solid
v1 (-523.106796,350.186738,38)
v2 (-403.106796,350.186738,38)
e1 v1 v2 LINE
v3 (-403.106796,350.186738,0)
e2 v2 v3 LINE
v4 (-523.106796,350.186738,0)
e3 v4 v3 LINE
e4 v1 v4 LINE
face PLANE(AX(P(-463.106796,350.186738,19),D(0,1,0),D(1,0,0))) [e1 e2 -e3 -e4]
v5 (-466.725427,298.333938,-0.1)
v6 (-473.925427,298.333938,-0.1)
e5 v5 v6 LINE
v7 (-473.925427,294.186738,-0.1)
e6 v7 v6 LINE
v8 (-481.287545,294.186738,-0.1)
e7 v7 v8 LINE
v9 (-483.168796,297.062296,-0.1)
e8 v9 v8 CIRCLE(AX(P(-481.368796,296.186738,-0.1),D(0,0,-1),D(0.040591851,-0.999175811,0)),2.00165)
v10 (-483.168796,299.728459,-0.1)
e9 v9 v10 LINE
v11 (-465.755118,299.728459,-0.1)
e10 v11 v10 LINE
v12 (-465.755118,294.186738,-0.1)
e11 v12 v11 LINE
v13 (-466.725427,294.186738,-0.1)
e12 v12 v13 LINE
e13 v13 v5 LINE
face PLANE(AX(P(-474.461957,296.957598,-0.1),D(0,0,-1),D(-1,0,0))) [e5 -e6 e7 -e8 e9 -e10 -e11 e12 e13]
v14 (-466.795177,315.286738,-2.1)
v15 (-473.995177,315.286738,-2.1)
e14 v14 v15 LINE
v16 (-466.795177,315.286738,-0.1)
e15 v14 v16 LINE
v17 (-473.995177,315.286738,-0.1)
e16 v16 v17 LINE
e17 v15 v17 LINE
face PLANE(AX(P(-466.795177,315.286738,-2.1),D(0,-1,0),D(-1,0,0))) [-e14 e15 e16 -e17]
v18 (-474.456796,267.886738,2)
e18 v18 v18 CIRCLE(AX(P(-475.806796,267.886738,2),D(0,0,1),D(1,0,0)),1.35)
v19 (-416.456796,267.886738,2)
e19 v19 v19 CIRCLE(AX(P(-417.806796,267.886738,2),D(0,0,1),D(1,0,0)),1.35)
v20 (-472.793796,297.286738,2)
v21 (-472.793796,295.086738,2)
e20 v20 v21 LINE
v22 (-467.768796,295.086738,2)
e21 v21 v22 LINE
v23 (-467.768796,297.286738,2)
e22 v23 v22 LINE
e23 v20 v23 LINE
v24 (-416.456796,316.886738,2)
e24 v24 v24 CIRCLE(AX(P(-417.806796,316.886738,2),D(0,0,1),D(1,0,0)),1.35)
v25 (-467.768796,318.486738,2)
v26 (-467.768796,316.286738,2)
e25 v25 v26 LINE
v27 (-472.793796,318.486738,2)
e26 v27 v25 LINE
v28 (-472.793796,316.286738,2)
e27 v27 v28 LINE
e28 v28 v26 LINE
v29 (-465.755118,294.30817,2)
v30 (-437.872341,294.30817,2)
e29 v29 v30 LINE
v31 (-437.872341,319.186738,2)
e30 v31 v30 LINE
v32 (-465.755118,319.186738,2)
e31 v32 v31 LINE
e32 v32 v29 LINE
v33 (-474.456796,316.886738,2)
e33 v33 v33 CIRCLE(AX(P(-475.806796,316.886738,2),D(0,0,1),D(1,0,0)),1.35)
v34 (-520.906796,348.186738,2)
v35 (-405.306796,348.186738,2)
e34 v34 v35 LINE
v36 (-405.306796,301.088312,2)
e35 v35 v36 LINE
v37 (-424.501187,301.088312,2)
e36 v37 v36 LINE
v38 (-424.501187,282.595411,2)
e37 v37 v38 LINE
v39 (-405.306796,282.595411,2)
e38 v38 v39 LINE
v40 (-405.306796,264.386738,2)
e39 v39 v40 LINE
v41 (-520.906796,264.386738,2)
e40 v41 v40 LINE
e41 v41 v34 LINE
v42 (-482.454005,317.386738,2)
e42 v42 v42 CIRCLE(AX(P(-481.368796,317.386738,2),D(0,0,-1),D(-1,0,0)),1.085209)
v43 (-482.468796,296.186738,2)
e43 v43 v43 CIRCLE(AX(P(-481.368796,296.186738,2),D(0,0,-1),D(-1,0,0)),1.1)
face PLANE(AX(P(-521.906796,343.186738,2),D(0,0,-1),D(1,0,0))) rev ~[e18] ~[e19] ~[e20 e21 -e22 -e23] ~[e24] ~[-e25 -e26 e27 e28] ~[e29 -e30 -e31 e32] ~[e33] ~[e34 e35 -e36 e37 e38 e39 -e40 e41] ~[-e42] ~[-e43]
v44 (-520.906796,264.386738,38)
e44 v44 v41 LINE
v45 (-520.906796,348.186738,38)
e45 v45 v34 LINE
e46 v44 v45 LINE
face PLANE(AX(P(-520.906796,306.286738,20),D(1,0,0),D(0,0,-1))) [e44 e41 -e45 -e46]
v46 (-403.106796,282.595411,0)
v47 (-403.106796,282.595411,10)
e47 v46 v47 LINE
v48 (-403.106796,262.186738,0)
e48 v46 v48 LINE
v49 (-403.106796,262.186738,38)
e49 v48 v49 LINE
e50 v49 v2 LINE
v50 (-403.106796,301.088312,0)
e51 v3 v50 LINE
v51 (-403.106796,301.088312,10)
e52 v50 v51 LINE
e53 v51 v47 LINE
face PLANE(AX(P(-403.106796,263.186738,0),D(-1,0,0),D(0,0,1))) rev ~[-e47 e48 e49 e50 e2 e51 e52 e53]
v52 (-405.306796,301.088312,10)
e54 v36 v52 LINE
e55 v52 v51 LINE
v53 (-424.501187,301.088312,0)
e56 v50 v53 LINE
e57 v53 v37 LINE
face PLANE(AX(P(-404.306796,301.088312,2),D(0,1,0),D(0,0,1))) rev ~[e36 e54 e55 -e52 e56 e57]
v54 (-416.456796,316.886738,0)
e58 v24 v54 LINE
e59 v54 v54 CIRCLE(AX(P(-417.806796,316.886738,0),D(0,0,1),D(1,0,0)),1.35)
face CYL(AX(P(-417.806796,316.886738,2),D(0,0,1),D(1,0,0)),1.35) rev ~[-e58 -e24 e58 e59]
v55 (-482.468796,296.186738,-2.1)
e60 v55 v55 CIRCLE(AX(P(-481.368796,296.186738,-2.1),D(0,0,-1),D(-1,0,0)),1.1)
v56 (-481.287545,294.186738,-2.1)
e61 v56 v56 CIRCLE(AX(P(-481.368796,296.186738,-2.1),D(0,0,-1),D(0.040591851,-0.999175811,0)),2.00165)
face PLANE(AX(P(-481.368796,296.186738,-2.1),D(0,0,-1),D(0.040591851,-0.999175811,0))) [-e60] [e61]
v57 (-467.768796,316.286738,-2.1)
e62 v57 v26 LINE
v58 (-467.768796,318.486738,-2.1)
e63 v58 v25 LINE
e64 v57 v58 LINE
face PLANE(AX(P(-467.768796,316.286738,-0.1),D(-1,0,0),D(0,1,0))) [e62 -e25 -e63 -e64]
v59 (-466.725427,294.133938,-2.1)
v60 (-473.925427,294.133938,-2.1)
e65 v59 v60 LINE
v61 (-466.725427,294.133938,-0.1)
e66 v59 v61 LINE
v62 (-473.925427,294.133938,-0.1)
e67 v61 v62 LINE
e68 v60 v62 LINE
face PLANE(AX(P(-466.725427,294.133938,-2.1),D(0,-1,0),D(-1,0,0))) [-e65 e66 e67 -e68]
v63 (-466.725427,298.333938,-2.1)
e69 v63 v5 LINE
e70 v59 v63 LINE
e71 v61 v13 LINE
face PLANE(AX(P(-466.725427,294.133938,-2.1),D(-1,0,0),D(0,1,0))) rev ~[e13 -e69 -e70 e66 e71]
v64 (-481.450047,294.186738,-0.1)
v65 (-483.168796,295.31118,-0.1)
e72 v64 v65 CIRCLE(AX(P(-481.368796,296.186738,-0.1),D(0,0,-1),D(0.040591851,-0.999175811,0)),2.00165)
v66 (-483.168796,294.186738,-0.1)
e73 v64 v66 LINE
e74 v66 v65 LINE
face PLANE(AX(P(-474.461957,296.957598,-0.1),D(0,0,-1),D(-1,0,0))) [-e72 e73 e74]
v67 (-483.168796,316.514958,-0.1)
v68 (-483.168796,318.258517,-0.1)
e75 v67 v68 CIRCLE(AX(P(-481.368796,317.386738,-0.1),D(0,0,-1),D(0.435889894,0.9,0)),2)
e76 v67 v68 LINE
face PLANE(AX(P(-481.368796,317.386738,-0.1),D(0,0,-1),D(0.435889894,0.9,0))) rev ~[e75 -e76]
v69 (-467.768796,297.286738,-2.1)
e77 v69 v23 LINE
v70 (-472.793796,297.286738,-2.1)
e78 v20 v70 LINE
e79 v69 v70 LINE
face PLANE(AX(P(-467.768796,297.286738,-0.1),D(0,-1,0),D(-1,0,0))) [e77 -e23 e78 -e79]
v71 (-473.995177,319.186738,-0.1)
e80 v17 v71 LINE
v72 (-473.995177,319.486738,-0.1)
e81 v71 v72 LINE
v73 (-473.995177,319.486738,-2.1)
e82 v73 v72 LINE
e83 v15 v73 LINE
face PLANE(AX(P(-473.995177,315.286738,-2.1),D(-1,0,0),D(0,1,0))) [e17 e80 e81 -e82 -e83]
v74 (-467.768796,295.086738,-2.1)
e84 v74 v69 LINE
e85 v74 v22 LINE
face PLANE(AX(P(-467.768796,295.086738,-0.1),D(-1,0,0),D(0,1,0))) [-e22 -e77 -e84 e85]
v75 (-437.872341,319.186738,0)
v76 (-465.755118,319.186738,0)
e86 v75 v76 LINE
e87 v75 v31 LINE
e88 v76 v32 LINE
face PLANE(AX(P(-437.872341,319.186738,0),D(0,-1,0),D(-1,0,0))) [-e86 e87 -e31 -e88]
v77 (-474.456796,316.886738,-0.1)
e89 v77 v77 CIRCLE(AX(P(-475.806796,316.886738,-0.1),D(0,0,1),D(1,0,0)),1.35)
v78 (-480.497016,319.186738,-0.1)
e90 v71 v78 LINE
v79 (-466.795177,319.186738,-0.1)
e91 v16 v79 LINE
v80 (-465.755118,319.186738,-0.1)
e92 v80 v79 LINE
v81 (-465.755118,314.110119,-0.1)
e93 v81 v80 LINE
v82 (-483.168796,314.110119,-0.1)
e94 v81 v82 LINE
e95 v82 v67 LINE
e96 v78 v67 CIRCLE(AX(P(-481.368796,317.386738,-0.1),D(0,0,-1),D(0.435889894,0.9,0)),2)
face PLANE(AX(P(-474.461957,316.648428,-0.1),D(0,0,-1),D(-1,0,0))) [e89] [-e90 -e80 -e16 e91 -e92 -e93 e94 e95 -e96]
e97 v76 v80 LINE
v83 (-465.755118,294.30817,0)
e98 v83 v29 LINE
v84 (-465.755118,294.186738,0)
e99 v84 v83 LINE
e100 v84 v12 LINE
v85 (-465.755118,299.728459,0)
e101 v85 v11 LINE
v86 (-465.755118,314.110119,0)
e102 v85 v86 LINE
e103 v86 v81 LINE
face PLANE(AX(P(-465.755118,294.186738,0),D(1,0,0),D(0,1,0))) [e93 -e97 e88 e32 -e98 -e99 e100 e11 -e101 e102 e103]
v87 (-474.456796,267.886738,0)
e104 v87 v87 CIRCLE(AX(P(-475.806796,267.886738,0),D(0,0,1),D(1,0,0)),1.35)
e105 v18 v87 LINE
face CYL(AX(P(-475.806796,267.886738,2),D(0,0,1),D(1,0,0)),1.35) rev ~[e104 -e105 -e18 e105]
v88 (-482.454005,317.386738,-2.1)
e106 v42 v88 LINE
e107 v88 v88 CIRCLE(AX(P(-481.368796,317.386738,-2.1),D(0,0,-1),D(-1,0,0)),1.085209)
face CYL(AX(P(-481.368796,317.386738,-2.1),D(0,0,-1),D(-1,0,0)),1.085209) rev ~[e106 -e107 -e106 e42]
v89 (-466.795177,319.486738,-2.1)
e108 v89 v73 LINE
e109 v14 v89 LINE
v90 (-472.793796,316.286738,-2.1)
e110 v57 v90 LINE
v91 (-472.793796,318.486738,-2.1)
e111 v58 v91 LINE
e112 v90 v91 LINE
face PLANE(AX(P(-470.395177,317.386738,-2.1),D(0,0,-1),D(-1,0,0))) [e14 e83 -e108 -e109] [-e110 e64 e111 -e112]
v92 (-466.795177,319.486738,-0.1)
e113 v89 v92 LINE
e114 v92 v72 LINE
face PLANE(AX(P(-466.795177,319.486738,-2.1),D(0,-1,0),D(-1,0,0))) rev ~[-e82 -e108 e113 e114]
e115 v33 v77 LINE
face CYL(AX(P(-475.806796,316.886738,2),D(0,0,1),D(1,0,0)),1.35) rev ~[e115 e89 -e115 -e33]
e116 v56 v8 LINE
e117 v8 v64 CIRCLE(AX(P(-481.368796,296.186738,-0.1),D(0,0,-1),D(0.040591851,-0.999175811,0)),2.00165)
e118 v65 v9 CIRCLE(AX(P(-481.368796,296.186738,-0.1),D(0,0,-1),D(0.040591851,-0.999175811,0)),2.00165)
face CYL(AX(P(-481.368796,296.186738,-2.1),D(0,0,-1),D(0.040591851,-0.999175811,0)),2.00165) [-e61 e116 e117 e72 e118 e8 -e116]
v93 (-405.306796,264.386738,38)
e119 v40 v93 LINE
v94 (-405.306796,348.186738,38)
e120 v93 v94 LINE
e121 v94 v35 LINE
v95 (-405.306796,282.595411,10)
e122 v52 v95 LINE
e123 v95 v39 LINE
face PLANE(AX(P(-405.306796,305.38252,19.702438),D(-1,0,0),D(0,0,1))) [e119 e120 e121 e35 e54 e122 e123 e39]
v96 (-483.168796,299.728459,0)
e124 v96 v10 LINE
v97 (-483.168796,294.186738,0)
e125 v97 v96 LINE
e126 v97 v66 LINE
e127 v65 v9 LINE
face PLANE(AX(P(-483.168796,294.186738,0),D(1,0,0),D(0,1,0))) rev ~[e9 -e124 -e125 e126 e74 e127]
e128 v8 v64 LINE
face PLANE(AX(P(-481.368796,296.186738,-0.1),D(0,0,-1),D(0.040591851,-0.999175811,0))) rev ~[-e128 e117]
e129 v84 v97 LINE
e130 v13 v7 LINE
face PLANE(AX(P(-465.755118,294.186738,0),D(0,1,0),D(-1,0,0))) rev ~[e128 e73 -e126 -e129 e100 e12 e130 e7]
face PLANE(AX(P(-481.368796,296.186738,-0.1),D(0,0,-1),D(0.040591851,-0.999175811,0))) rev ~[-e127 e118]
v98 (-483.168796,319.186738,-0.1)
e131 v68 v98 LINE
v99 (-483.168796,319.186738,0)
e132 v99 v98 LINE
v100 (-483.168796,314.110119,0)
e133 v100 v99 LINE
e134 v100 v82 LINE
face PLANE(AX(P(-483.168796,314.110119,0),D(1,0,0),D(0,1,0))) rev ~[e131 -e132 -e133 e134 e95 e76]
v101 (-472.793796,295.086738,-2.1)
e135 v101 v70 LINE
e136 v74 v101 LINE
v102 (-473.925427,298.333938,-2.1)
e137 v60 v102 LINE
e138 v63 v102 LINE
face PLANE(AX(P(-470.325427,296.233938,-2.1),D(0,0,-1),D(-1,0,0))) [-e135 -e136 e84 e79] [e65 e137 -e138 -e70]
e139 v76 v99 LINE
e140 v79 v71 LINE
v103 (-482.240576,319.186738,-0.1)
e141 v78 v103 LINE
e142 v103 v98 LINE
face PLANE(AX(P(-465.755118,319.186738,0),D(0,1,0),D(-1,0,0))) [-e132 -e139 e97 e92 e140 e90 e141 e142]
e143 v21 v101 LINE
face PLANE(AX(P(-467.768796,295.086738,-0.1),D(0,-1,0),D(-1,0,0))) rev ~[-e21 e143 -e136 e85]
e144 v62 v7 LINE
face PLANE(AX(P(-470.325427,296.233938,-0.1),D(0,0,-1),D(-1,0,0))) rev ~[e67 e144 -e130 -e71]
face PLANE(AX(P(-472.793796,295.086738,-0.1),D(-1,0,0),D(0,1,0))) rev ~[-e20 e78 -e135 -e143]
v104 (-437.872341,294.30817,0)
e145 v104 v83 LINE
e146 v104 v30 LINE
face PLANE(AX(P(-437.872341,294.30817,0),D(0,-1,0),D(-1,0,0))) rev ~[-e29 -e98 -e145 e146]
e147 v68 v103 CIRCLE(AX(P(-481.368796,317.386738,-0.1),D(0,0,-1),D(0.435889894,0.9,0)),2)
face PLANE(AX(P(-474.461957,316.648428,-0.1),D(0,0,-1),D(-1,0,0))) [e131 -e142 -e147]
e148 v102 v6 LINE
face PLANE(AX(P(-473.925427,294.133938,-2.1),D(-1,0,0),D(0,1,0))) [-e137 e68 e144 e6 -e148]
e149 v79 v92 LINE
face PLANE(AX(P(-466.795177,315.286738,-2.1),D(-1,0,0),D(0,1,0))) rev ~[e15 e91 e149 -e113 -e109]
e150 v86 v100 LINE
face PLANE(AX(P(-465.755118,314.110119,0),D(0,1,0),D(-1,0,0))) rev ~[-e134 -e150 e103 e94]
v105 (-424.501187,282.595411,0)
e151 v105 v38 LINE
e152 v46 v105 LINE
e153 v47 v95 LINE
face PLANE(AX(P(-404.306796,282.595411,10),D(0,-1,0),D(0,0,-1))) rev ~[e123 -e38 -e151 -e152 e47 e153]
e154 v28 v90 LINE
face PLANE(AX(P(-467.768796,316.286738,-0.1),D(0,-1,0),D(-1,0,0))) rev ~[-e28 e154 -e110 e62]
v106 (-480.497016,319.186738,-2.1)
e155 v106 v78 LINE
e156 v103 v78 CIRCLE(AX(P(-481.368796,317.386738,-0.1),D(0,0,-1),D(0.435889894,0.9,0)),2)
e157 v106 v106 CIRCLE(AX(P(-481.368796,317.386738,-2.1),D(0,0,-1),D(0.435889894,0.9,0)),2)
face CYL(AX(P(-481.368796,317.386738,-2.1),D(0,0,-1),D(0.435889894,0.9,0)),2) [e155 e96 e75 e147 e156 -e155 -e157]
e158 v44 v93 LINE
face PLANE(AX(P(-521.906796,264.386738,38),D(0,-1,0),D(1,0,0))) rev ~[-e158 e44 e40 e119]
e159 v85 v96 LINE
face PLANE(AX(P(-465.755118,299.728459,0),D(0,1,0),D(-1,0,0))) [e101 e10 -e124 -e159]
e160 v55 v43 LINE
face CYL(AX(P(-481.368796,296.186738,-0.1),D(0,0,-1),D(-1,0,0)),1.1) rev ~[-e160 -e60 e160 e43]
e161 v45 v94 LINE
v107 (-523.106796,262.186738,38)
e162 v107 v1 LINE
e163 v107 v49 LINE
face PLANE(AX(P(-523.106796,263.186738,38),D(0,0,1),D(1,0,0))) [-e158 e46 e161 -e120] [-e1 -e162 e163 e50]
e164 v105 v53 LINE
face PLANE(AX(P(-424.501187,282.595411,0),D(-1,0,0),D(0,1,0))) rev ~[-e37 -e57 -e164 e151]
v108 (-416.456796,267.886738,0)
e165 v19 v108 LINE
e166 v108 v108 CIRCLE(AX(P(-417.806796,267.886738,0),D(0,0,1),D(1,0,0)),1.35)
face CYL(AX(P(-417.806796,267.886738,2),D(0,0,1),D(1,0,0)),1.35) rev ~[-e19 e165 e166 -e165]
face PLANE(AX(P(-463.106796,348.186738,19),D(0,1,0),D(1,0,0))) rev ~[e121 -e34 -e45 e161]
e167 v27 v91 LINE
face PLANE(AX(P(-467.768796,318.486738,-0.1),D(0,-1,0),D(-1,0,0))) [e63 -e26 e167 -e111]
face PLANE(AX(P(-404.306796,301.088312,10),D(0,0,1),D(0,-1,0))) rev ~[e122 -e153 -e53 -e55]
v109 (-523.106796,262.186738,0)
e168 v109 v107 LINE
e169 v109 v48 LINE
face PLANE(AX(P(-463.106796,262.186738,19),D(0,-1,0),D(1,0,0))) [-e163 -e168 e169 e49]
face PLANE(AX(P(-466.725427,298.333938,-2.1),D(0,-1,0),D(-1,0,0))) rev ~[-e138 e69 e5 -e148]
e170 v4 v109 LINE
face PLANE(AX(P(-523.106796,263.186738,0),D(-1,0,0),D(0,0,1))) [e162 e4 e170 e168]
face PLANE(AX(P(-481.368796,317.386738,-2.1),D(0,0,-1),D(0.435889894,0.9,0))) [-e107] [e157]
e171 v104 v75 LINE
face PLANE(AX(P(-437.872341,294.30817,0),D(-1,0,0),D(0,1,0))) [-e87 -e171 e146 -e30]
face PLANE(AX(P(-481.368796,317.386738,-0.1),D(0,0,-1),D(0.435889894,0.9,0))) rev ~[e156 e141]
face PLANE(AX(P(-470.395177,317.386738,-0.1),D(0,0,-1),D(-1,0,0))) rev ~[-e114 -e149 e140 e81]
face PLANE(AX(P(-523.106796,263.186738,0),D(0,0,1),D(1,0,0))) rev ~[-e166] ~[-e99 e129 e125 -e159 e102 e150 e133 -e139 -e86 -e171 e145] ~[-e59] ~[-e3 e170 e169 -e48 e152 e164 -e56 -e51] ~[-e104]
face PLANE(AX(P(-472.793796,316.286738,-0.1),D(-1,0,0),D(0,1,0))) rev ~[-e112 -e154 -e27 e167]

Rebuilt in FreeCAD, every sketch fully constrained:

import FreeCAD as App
import Part
import Sketcher

V = App.Vector

doc = App.newDocument("Part")
body = doc.addObject("PartDesign::Body", "Body")

sketch1 = body.newObject("Sketcher::SketchObject", "Sketch")
sketch1.AttachmentSupport = (doc.getObject("XY_Plane"), [""])
sketch1.MapMode = "FlatFace"
sketch1.addGeometry([
    Part.LineSegment(V(-523.106796, 343.186738, 0), V(-523.106796, 263.186738, 0)),
    Part.LineSegment(V(-523.106796, 263.186738, 0), V(-403.106796, 263.186738, 0)),
    Part.LineSegment(V(-403.106796, 263.186738, 0), V(-403.106796, 343.186738, 0)),
    Part.LineSegment(V(-403.106796, 343.186738, 0), V(-523.106796, 343.186738, 0)),
], False)
sketch1.addConstraint([
    Sketcher.Constraint("Coincident", 0, 2, 1, 1),
    Sketcher.Constraint("Coincident", 1, 2, 2, 1),
    Sketcher.Constraint("Coincident", 2, 2, 3, 1),
    Sketcher.Constraint("Coincident", 3, 2, 0, 1),
    Sketcher.Constraint("Vertical", 0),
    Sketcher.Constraint("Horizontal", 1),
    Sketcher.Constraint("Vertical", 2),
    Sketcher.Constraint("Horizontal", 3),
    Sketcher.Constraint("DistanceX", 1, 1, 1, 2, 120.0),
    Sketcher.Constraint("DistanceY", 0, 2, 0, 1, 80.0),
    Sketcher.Constraint("DistanceX", 0, 2, -1, 1, 523.106796),
    Sketcher.Constraint("DistanceY", -1, 1, 0, 2, 263.186738),
])
pad1 = body.newObject("PartDesign::Pad", "Pad")
pad1.Profile = sketch1
pad1.Length = 38

sketch2 = body.newObject("Sketcher::SketchObject", "Sketch001")
sketch2.AttachmentSupport = (doc.getObject("XY_Plane"), [""])
sketch2.MapMode = "FlatFace"
sketch2.AttachmentOffset = App.Placement(V(0, 0, 38), App.Rotation())
sketch2.addGeometry([
    Part.LineSegment(V(-521.906796, 341.986738, 0), V(-521.906796, 264.386738, 0)),
    Part.LineSegment(V(-521.906796, 264.386738, 0), V(-404.306796, 264.386738, 0)),
    Part.LineSegment(V(-404.306796, 264.386738, 0), V(-404.306796, 341.986738, 0)),
    Part.LineSegment(V(-404.306796, 341.986738, 0), V(-521.906796, 341.986738, 0)),
], False)
sketch2.addConstraint([
    Sketcher.Constraint("Coincident", 0, 2, 1, 1),
    Sketcher.Constraint("Coincident", 1, 2, 2, 1),
    Sketcher.Constraint("Coincident", 2, 2, 3, 1),
    Sketcher.Constraint("Coincident", 3, 2, 0, 1),
    Sketcher.Constraint("Vertical", 0),
    Sketcher.Constraint("Horizontal", 1),
    Sketcher.Constraint("Vertical", 2),
    Sketcher.Constraint("Horizontal", 3),
    Sketcher.Constraint("DistanceX", 1, 1, 1, 2, 117.6),
    Sketcher.Constraint("DistanceY", 0, 2, 0, 1, 77.6),
    Sketcher.Constraint("DistanceX", 0, 2, -1, 1, 521.906796),
    Sketcher.Constraint("DistanceY", -1, 1, 0, 2, 264.386738),
])
pocket1 = body.newObject("PartDesign::Pocket", "Pocket")
pocket1.Profile = sketch2
pocket1.Length = 36

sketch3 = body.newObject("Sketcher::SketchObject", "Sketch002")
sketch3.AttachmentSupport = (doc.getObject("XY_Plane"), [""])
sketch3.MapMode = "FlatFace"
sketch3.addGeometry([
    Part.LineSegment(V(-399.348216, 301.088312, 0), V(-399.348216, 282.595411, 0)),
    Part.LineSegment(V(-399.348216, 282.595411, 0), V(-424.501187, 282.595411, 0)),
    Part.LineSegment(V(-424.501187, 282.595411, 0), V(-424.501187, 301.088312, 0)),
    Part.LineSegment(V(-424.501187, 301.088312, 0), V(-399.348216, 301.088312, 0)),
], False)
sketch3.addConstraint([
    Sketcher.Constraint("Coincident", 0, 2, 1, 1),
    Sketcher.Constraint("Coincident", 1, 2, 2, 1),
    Sketcher.Constraint("Coincident", 2, 2, 3, 1),
    Sketcher.Constraint("Coincident", 3, 2, 0, 1),
    Sketcher.Constraint("Vertical", 0),
    Sketcher.Constraint("Horizontal", 1),
    Sketcher.Constraint("Vertical", 2),
    Sketcher.Constraint("Horizontal", 3),
    Sketcher.Constraint("DistanceY", 0, 2, 0, 1, 18.492901),
    Sketcher.Constraint("DistanceX", 1, 2, 1, 1, 25.152971),
    Sketcher.Constraint("DistanceY", -1, 1, 0, 2, 282.595411),
    Sketcher.Constraint("DistanceX", 0, 2, -1, 1, 399.348216),
])
pocket2 = body.newObject("PartDesign::Pocket", "Pocket001")
pocket2.Profile = sketch3
pocket2.Length = 10
pocket2.Reversed = True

sketch4 = body.newObject("Sketcher::SketchObject", "Sketch003")
sketch4.AttachmentSupport = (doc.getObject("XY_Plane"), [""])
sketch4.MapMode = "FlatFace"
sketch4.addGeometry([
    Part.LineSegment(V(-465.755118, 319.186738, 0), V(-465.755118, 314.110119, 0)),
    Part.LineSegment(V(-465.755118, 314.110119, 0), V(-483.168796, 314.110119, 0)),
    Part.LineSegment(V(-483.168796, 314.110119, 0), V(-483.168796, 319.186738, 0)),
    Part.LineSegment(V(-483.168796, 319.186738, 0), V(-465.755118, 319.186738, 0)),
    Part.LineSegment(V(-465.755118, 299.728459, 0), V(-465.755118, 294.186738, 0)),
    Part.LineSegment(V(-465.755118, 294.186738, 0), V(-483.168796, 294.186738, 0)),
    Part.LineSegment(V(-483.168796, 294.186738, 0), V(-483.168796, 299.728459, 0)),
    Part.LineSegment(V(-483.168796, 299.728459, 0), V(-465.755118, 299.728459, 0)),
], False)
sketch4.addConstraint([
    Sketcher.Constraint("Coincident", 0, 2, 1, 1),
    Sketcher.Constraint("Coincident", 1, 2, 2, 1),
    Sketcher.Constraint("Coincident", 2, 2, 3, 1),
    Sketcher.Constraint("Coincident", 3, 2, 0, 1),
    Sketcher.Constraint("Coincident", 4, 2, 5, 1),
    Sketcher.Constraint("Coincident", 5, 2, 6, 1),
    Sketcher.Constraint("Coincident", 6, 2, 7, 1),
    Sketcher.Constraint("Coincident", 7, 2, 4, 1),
    Sketcher.Constraint("Vertical", 0),
    Sketcher.Constraint("Horizontal", 1),
    Sketcher.Constraint("Vertical", 2),
    Sketcher.Constraint("Horizontal", 3),
    Sketcher.Constraint("Vertical", 4),
    Sketcher.Constraint("Horizontal", 5),
    Sketcher.Constraint("Vertical", 6),
    Sketcher.Constraint("Horizontal", 7),
    Sketcher.Constraint("Vertical", 3, 2, 4, 2),
    Sketcher.Constraint("Vertical", 2, 2, 5, 2),
    Sketcher.Constraint("DistanceY", 4, 2, 3, 2, 25.0),
    Sketcher.Constraint("DistanceX", 1, 2, 1, 1, 17.413678),
    Sketcher.Constraint("DistanceY", 0, 2, 0, 1, 5.076619),
    Sketcher.Constraint("DistanceY", 4, 2, 4, 1, 5.541721),
    Sketcher.Constraint("DistanceY", -1, 1, 0, 2, 314.110119),
    Sketcher.Constraint("DistanceX", 0, 2, -1, 1, 465.755118),
])
pad2 = body.newObject("PartDesign::Pad", "Pad001")
pad2.Profile = sketch4
pad2.Length = 0.1
pad2.Reversed = True

sketch5 = body.newObject("Sketcher::SketchObject", "Sketch004")
sketch5.AttachmentSupport = (doc.getObject("XY_Plane"), [""])
sketch5.MapMode = "FlatFace"
sketch5.addGeometry([
    Part.LineSegment(V(-437.872341, 319.186738, 0), V(-437.872341, 294.30817, 0)),
    Part.LineSegment(V(-437.872341, 294.30817, 0), V(-465.755118, 294.30817, 0)),
    Part.LineSegment(V(-465.755118, 294.30817, 0), V(-465.755118, 319.186738, 0)),
    Part.LineSegment(V(-465.755118, 319.186738, 0), V(-437.872341, 319.186738, 0)),
], False)
sketch5.addConstraint([
    Sketcher.Constraint("Coincident", 0, 2, 1, 1),
    Sketcher.Constraint("Coincident", 1, 2, 2, 1),
    Sketcher.Constraint("Coincident", 2, 2, 3, 1),
    Sketcher.Constraint("Coincident", 3, 2, 0, 1),
    Sketcher.Constraint("Vertical", 0),
    Sketcher.Constraint("Horizontal", 1),
    Sketcher.Constraint("Vertical", 2),
    Sketcher.Constraint("Horizontal", 3),
    Sketcher.Constraint("DistanceY", 0, 2, 0, 1, 24.878568),
    Sketcher.Constraint("DistanceX", 1, 2, 1, 1, 27.882777),
    Sketcher.Constraint("DistanceX", 0, 2, -1, 1, 437.872341),
    Sketcher.Constraint("DistanceY", -1, 1, 0, 2, 294.30817),
])
pocket3 = body.newObject("PartDesign::Pocket", "Pocket002")
pocket3.Profile = sketch5
pocket3.Length = 12
pocket3.Reversed = True

sketch6 = body.newObject("Sketcher::SketchObject", "Sketch005")
sketch6.AttachmentSupport = (doc.getObject("XY_Plane"), [""])
sketch6.MapMode = "FlatFace"
sketch6.AttachmentOffset = App.Placement(V(0, 0, -0.1), App.Rotation())
sketch6.addGeometry([
    Part.Circle(V(-481.368796, 317.386738, 0), V(0, 0, 1), 1.085209),
    Part.Circle(V(-481.368796, 296.186738, 0), V(0, 0, 1), 1.1),
    Part.LineSegment(V(-467.768796, 318.486738, 0), V(-467.768796, 316.286738, 0)),
    Part.LineSegment(V(-467.768796, 316.286738, 0), V(-472.793796, 316.286738, 0)),
    Part.LineSegment(V(-472.793796, 316.286738, 0), V(-472.793796, 318.486738, 0)),
    Part.LineSegment(V(-472.793796, 318.486738, 0), V(-467.768796, 318.486738, 0)),
    Part.LineSegment(V(-467.768796, 297.286738, 0), V(-467.768796, 295.086738, 0)),
    Part.LineSegment(V(-467.768796, 295.086738, 0), V(-472.793796, 295.086738, 0)),
    Part.LineSegment(V(-472.793796, 295.086738, 0), V(-472.793796, 297.286738, 0)),
    Part.LineSegment(V(-472.793796, 297.286738, 0), V(-467.768796, 297.286738, 0)),
], False)
sketch6.addConstraint([
    Sketcher.Constraint("Coincident", 2, 2, 3, 1),
    Sketcher.Constraint("Coincident", 3, 2, 4, 1),
    Sketcher.Constraint("Coincident", 4, 2, 5, 1),
    Sketcher.Constraint("Coincident", 5, 2, 2, 1),
    Sketcher.Constraint("Coincident", 6, 2, 7, 1),
    Sketcher.Constraint("Coincident", 7, 2, 8, 1),
    Sketcher.Constraint("Coincident", 8, 2, 9, 1),
    Sketcher.Constraint("Coincident", 9, 2, 6, 1),
    Sketcher.Constraint("Vertical", 2),
    Sketcher.Constraint("Horizontal", 3),
    Sketcher.Constraint("Vertical", 4),
    Sketcher.Constraint("Horizontal", 5),
    Sketcher.Constraint("Vertical", 6),
    Sketcher.Constraint("Horizontal", 7),
    Sketcher.Constraint("Vertical", 8),
    Sketcher.Constraint("Horizontal", 9),
    Sketcher.Constraint("Vertical", 0, 3, 1, 3),
    Sketcher.Constraint("Vertical", 5, 2, 6, 2),
    Sketcher.Constraint("Vertical", 4, 2, 7, 2),
    Sketcher.Constraint("Equal", 4, 6),
    Sketcher.Constraint("Diameter", 1, 2.2),
    Sketcher.Constraint("DistanceY", 2, 2, 2, 1, 2.2),
    Sketcher.Constraint("DistanceY", 8, 2, 3, 2, 19.0),
    Sketcher.Constraint("DistanceY", 1, 3, 0, 3, 21.2),
    Sketcher.Constraint("DistanceX", 0, 3, 2, 2, 13.6),
    Sketcher.Constraint("DistanceY", 2, 2, 0, 3, 1.1),
    Sketcher.Constraint("Diameter", 0, 2.170418),
    Sketcher.Constraint("DistanceX", 3, 2, 3, 1, 5.025),
    Sketcher.Constraint("DistanceX", 0, 3, -1, 1, 481.368796),
    Sketcher.Constraint("DistanceY", -1, 1, 0, 3, 317.386738),
])
pocket4 = body.newObject("PartDesign::Pocket", "Pocket003")
pocket4.Profile = sketch6
pocket4.Length = 12
pocket4.Reversed = True

sketch7 = body.newObject("Sketcher::SketchObject", "Sketch006")
sketch7.AttachmentSupport = (doc.getObject("XY_Plane"), [""])
sketch7.MapMode = "FlatFace"
sketch7.AttachmentOffset = App.Placement(V(0, 0, 2), App.Rotation())
sketch7.addGeometry([
    Part.Circle(V(-475.806796, 316.886738, 0), V(0, 0, 1), 1.35),
    Part.Circle(V(-417.806796, 316.886738, 0), V(0, 0, 1), 1.35),
    Part.Circle(V(-417.806796, 267.886738, 0), V(0, 0, 1), 1.35),
    Part.Circle(V(-475.806796, 267.886738, 0), V(0, 0, 1), 1.35),
], False)
sketch7.addConstraint([
    Sketcher.Constraint("Equal", 0, 1),
    Sketcher.Constraint("Equal", 1, 2),
    Sketcher.Constraint("Equal", 2, 3),
    Sketcher.Constraint("Horizontal", 0, 3, 1, 3),
    Sketcher.Constraint("Horizontal", 2, 3, 3, 3),
    Sketcher.Constraint("Vertical", 1, 3, 2, 3),
    Sketcher.Constraint("Vertical", 0, 3, 3, 3),
    Sketcher.Constraint("Diameter", 0, 2.7),
    Sketcher.Constraint("DistanceX", 0, 3, 1, 3, 58.0),
    Sketcher.Constraint("DistanceY", 2, 3, 1, 3, 49.0),
    Sketcher.Constraint("DistanceX", 0, 3, -1, 1, 475.806796),
    Sketcher.Constraint("DistanceY", -1, 1, 0, 3, 316.886738),
])
pocket5 = body.newObject("PartDesign::Pocket", "Pocket004")
pocket5.Profile = sketch7
pocket5.Length = 12

sketch8 = body.newObject("Sketcher::SketchObject", "Sketch007")
sketch8.AttachmentSupport = (doc.getObject("XZ_Plane"), [""])
sketch8.MapMode = "FlatFace"
sketch8.AttachmentOffset = App.Placement(V(0, 0, -341.986738), App.Rotation())
sketch8.addGeometry([
    Part.LineSegment(V(-521.906796, 38, 0), V(-521.906796, 2, 0)),
    Part.LineSegment(V(-521.906796, 2, 0), V(-404.306796, 2, 0)),
    Part.LineSegment(V(-404.306796, 2, 0), V(-404.306796, 38, 0)),
    Part.LineSegment(V(-404.306796, 38, 0), V(-521.906796, 38, 0)),
], False)
sketch8.addConstraint([
    Sketcher.Constraint("Coincident", 0, 2, 1, 1),
    Sketcher.Constraint("Coincident", 1, 2, 2, 1),
    Sketcher.Constraint("Coincident", 2, 2, 3, 1),
    Sketcher.Constraint("Coincident", 3, 2, 0, 1),
    Sketcher.Constraint("Vertical", 0),
    Sketcher.Constraint("Horizontal", 1),
    Sketcher.Constraint("Vertical", 2),
    Sketcher.Constraint("Horizontal", 3),
    Sketcher.Constraint("DistanceY", 0, 2, 0, 1, 36.0),
    Sketcher.Constraint("DistanceX", 1, 1, 1, 2, 117.6),
    Sketcher.Constraint("DistanceY", -1, 1, 0, 2, 2.0),
    Sketcher.Constraint("DistanceX", 0, 2, -1, 1, 521.906796),
])
pocket6 = body.newObject("PartDesign::Pocket", "Pocket005")
pocket6.Profile = sketch8
pocket6.Length = 10

sketch9 = body.newObject("Sketcher::SketchObject", "Sketch008")
sketch9.AttachmentSupport = (doc.getObject("XZ_Plane"), [""])
sketch9.MapMode = "FlatFace"
sketch9.AttachmentOffset = App.Placement(V(0, 0, -343.186738), App.Rotation())
sketch9.addGeometry([
    Part.LineSegment(V(-521.906796, 2, 0), V(-404.306796, 2, 0)),
    Part.LineSegment(V(-404.306796, 2, 0), V(-404.306796, 38, 0)),
    Part.LineSegment(V(-404.306796, 38, 0), V(-403.106796, 38, 0)),
    Part.LineSegment(V(-403.106796, 38, 0), V(-403.106796, 0, 0)),
    Part.LineSegment(V(-403.106796, 0, 0), V(-523.106796, 0, 0)),
    Part.LineSegment(V(-523.106796, 0, 0), V(-523.106796, 38, 0)),
    Part.LineSegment(V(-523.106796, 38, 0), V(-521.906796, 38, 0)),
    Part.LineSegment(V(-521.906796, 38, 0), V(-521.906796, 2, 0)),
], False)
sketch9.addConstraint([
    Sketcher.Constraint("Coincident", 0, 2, 1, 1),
    Sketcher.Constraint("Coincident", 1, 2, 2, 1),
    Sketcher.Constraint("Coincident", 2, 2, 3, 1),
    Sketcher.Constraint("Coincident", 3, 2, 4, 1),
    Sketcher.Constraint("Coincident", 4, 2, 5, 1),
    Sketcher.Constraint("Coincident", 5, 2, 6, 1),
    Sketcher.Constraint("Coincident", 6, 2, 7, 1),
    Sketcher.Constraint("Coincident", 7, 2, 0, 1),
    Sketcher.Constraint("Horizontal", 0),
    Sketcher.Constraint("Vertical", 1),
    Sketcher.Constraint("Horizontal", 2),
    Sketcher.Constraint("Vertical", 3),
    Sketcher.Constraint("Horizontal", 4),
    Sketcher.Constraint("Vertical", 5),
    Sketcher.Constraint("Horizontal", 6),
    Sketcher.Constraint("Vertical", 7),
    Sketcher.Constraint("PointOnObject", 3, 2, -1),
    Sketcher.Constraint("Horizontal", 2, 2, 5, 2),
    Sketcher.Constraint("Equal", 2, 6),
    Sketcher.Constraint("DistanceX", 4, 2, 4, 1, 120.0),
    Sketcher.Constraint("DistanceY", 1, 1, 1, 2, 36.0),
    Sketcher.Constraint("DistanceY", 3, 2, 3, 1, 38.0),
    Sketcher.Constraint("DistanceX", 0, 1, 0, 2, 117.6),
    Sketcher.Constraint("DistanceX", 0, 2, -1, 1, 404.306796),
])
pad3 = body.newObject("PartDesign::Pad", "Pad002")
pad3.Profile = sketch9
pad3.Length = 5
pad3.Reversed = True

sketch10 = body.newObject("Sketcher::SketchObject", "Sketch009")
sketch10.AttachmentSupport = (doc.getObject("XZ_Plane"), [""])
sketch10.MapMode = "FlatFace"
sketch10.AttachmentOffset = App.Placement(V(0, 0, -348.186738), App.Rotation())
sketch10.addGeometry([
    Part.LineSegment(V(-523.106796, 0, 0), V(-523.106796, 38, 0)),
    Part.LineSegment(V(-523.106796, 38, 0), V(-403.106796, 38, 0)),
    Part.LineSegment(V(-403.106796, 38, 0), V(-403.106796, 0, 0)),
    Part.LineSegment(V(-403.106796, 0, 0), V(-523.106796, 0, 0)),
], False)
sketch10.addConstraint([
    Sketcher.Constraint("Coincident", 0, 2, 1, 1),
    Sketcher.Constraint("Coincident", 1, 2, 2, 1),
    Sketcher.Constraint("Coincident", 2, 2, 3, 1),
    Sketcher.Constraint("Coincident", 3, 2, 0, 1),
    Sketcher.Constraint("Vertical", 0),
    Sketcher.Constraint("Horizontal", 1),
    Sketcher.Constraint("Vertical", 2),
    Sketcher.Constraint("Horizontal", 3),
    Sketcher.Constraint("PointOnObject", 2, 2, -1),
    Sketcher.Constraint("DistanceX", 1, 1, 1, 2, 120.0),
    Sketcher.Constraint("DistanceY", 0, 1, 0, 2, 38.0),
    Sketcher.Constraint("DistanceX", 0, 2, -1, 1, 523.106796),
])
pad4 = body.newObject("PartDesign::Pad", "Pad003")
pad4.Profile = sketch10
pad4.Length = 2
pad4.Reversed = True

sketch11 = body.newObject("Sketcher::SketchObject", "Sketch010")
sketch11.AttachmentSupport = (doc.getObject("YZ_Plane"), [""])
sketch11.MapMode = "FlatFace"
sketch11.AttachmentOffset = App.Placement(V(0, 0, -521.906796), App.Rotation())
sketch11.addGeometry([
    Part.LineSegment(V(348.186738, 38, 0), V(264.386738, 38, 0)),
    Part.LineSegment(V(264.386738, 38, 0), V(264.386738, 2, 0)),
    Part.LineSegment(V(264.386738, 2, 0), V(348.186738, 2, 0)),
    Part.LineSegment(V(348.186738, 2, 0), V(348.186738, 38, 0)),
], False)
sketch11.addConstraint([
    Sketcher.Constraint("Coincident", 0, 2, 1, 1),
    Sketcher.Constraint("Coincident", 1, 2, 2, 1),
    Sketcher.Constraint("Coincident", 2, 2, 3, 1),
    Sketcher.Constraint("Coincident", 3, 2, 0, 1),
    Sketcher.Constraint("Horizontal", 0),
    Sketcher.Constraint("Vertical", 1),
    Sketcher.Constraint("Horizontal", 2),
    Sketcher.Constraint("Vertical", 3),
    Sketcher.Constraint("DistanceY", 1, 2, 1, 1, 36.0),
    Sketcher.Constraint("DistanceX", 0, 2, 0, 1, 83.8),
    Sketcher.Constraint("DistanceY", -1, 1, 0, 2, 38.0),
    Sketcher.Constraint("DistanceX", -1, 1, 0, 2, 264.386738),
])
pad5 = body.newObject("PartDesign::Pad", "Pad004")
pad5.Profile = sketch11
pad5.Length = 1

sketch12 = body.newObject("Sketcher::SketchObject", "Sketch011")
sketch12.AttachmentSupport = (doc.getObject("YZ_Plane"), [""])
sketch12.MapMode = "FlatFace"
sketch12.AttachmentOffset = App.Placement(V(0, 0, -404.306796), App.Rotation())
sketch12.addGeometry([
    Part.LineSegment(V(301.088312, 10, 0), V(282.595411, 10, 0)),
    Part.LineSegment(V(282.595411, 10, 0), V(282.595411, 2, 0)),
    Part.LineSegment(V(282.595411, 2, 0), V(264.386738, 2, 0)),
    Part.LineSegment(V(264.386738, 2, 0), V(264.386738, 38, 0)),
    Part.LineSegment(V(264.386738, 38, 0), V(348.186738, 38, 0)),
    Part.LineSegment(V(348.186738, 38, 0), V(348.186738, 2, 0)),
    Part.LineSegment(V(348.186738, 2, 0), V(301.088312, 2, 0)),
    Part.LineSegment(V(301.088312, 2, 0), V(301.088312, 10, 0)),
], False)
sketch12.addConstraint([
    Sketcher.Constraint("Coincident", 0, 2, 1, 1),
    Sketcher.Constraint("Coincident", 1, 2, 2, 1),
    Sketcher.Constraint("Coincident", 2, 2, 3, 1),
    Sketcher.Constraint("Coincident", 3, 2, 4, 1),
    Sketcher.Constraint("Coincident", 4, 2, 5, 1),
    Sketcher.Constraint("Coincident", 5, 2, 6, 1),
    Sketcher.Constraint("Coincident", 6, 2, 7, 1),
    Sketcher.Constraint("Coincident", 7, 2, 0, 1),
    Sketcher.Constraint("Horizontal", 0),
    Sketcher.Constraint("Vertical", 1),
    Sketcher.Constraint("Horizontal", 2),
    Sketcher.Constraint("Vertical", 3),
    Sketcher.Constraint("Horizontal", 4),
    Sketcher.Constraint("Vertical", 5),
    Sketcher.Constraint("Horizontal", 6),
    Sketcher.Constraint("Vertical", 7),
    Sketcher.Constraint("Horizontal", 2, 2, 5, 2),
    Sketcher.Constraint("DistanceY", 1, 2, 1, 1, 8.0),
    Sketcher.Constraint("DistanceY", 3, 1, 3, 2, 36.0),
    Sketcher.Constraint("DistanceX", 4, 1, 4, 2, 83.8),
    Sketcher.Constraint("DistanceY", -1, 1, 0, 2, 10.0),
    Sketcher.Constraint("DistanceX", 0, 2, 0, 1, 18.492901),
    Sketcher.Constraint("DistanceX", 2, 2, 2, 1, 18.208673),
    Sketcher.Constraint("DistanceX", -1, 1, 0, 2, 282.595411),
])
pad6 = body.newObject("PartDesign::Pad", "Pad005")
pad6.Profile = sketch12
pad6.Length = 1
pad6.Reversed = True

sketch13 = body.newObject("Sketcher::SketchObject", "Sketch012")
sketch13.AttachmentSupport = (doc.getObject("XZ_Plane"), [""])
sketch13.MapMode = "FlatFace"
sketch13.AttachmentOffset = App.Placement(V(0, 0, -263.186738), App.Rotation())
sketch13.addGeometry([
    Part.LineSegment(V(-523.106796, 38, 0), V(-523.106796, 0, 0)),
    Part.LineSegment(V(-523.106796, 0, 0), V(-403.106796, 0, 0)),
    Part.LineSegment(V(-403.106796, 0, 0), V(-403.106796, 38, 0)),
    Part.LineSegment(V(-403.106796, 38, 0), V(-523.106796, 38, 0)),
], False)
sketch13.addConstraint([
    Sketcher.Constraint("Coincident", 0, 2, 1, 1),
    Sketcher.Constraint("Coincident", 1, 2, 2, 1),
    Sketcher.Constraint("Coincident", 2, 2, 3, 1),
    Sketcher.Constraint("Coincident", 3, 2, 0, 1),
    Sketcher.Constraint("Vertical", 0),
    Sketcher.Constraint("Horizontal", 1),
    Sketcher.Constraint("Vertical", 2),
    Sketcher.Constraint("Horizontal", 3),
    Sketcher.Constraint("PointOnObject", 0, 2, -1),
    Sketcher.Constraint("DistanceX", 1, 1, 1, 2, 120.0),
    Sketcher.Constraint("DistanceY", 0, 2, 0, 1, 38.0),
    Sketcher.Constraint("DistanceX", 0, 2, -1, 1, 523.106796),
])
pad7 = body.newObject("PartDesign::Pad", "Pad006")
pad7.Profile = sketch13
pad7.Length = 1

sketch14 = body.newObject("Sketcher::SketchObject", "Sketch013")
sketch14.AttachmentSupport = (doc.getObject("XY_Plane"), [""])
sketch14.MapMode = "FlatFace"
sketch14.AttachmentOffset = App.Placement(V(0, 0, -2.1), App.Rotation())
sketch14.addGeometry([
    Part.Circle(V(-481.368796, 317.386738, 0), V(0, 0, 1), 2),
    Part.Circle(V(-481.368796, 317.386738, 0), V(0, 0, 1), 1.085209),
    Part.Circle(V(-481.368796, 296.186738, 0), V(0, 0, 1), 2.00165),
    Part.Circle(V(-481.368796, 296.186738, 0), V(0, 0, 1), 1.1),
    Part.LineSegment(V(-466.795177, 319.486738, 0), V(-466.795177, 315.286738, 0)),
    Part.LineSegment(V(-466.795177, 315.286738, 0), V(-473.995177, 315.286738, 0)),
    Part.LineSegment(V(-473.995177, 315.286738, 0), V(-473.995177, 319.486738, 0)),
    Part.LineSegment(V(-473.995177, 319.486738, 0), V(-466.795177, 319.486738, 0)),
    Part.LineSegment(V(-472.793796, 316.286738, 0), V(-467.768796, 316.286738, 0)),
    Part.LineSegment(V(-467.768796, 316.286738, 0), V(-467.768796, 318.486738, 0)),
    Part.LineSegment(V(-467.768796, 318.486738, 0), V(-472.793796, 318.486738, 0)),
    Part.LineSegment(V(-472.793796, 318.486738, 0), V(-472.793796, 316.286738, 0)),
    Part.LineSegment(V(-466.725427, 298.333938, 0), V(-466.725427, 294.133938, 0)),
    Part.LineSegment(V(-466.725427, 294.133938, 0), V(-473.925427, 294.133938, 0)),
    Part.LineSegment(V(-473.925427, 294.133938, 0), V(-473.925427, 298.333938, 0)),
    Part.LineSegment(V(-473.925427, 298.333938, 0), V(-466.725427, 298.333938, 0)),
    Part.LineSegment(V(-472.793796, 295.086738, 0), V(-467.768796, 295.086738, 0)),
    Part.LineSegment(V(-467.768796, 295.086738, 0), V(-467.768796, 297.286738, 0)),
    Part.LineSegment(V(-467.768796, 297.286738, 0), V(-472.793796, 297.286738, 0)),
    Part.LineSegment(V(-472.793796, 297.286738, 0), V(-472.793796, 295.086738, 0)),
], False)
sketch14.addConstraint([
    Sketcher.Constraint("Coincident", 4, 2, 5, 1),
    Sketcher.Constraint("Coincident", 5, 2, 6, 1),
    Sketcher.Constraint("Coincident", 6, 2, 7, 1),
    Sketcher.Constraint("Coincident", 7, 2, 4, 1),
    Sketcher.Constraint("Coincident", 8, 2, 9, 1),
    Sketcher.Constraint("Coincident", 9, 2, 10, 1),
    Sketcher.Constraint("Coincident", 10, 2, 11, 1),
    Sketcher.Constraint("Coincident", 11, 2, 8, 1),
    Sketcher.Constraint("Coincident", 12, 2, 13, 1),
    Sketcher.Constraint("Coincident", 13, 2, 14, 1),
    Sketcher.Constraint("Coincident", 14, 2, 15, 1),
    Sketcher.Constraint("Coincident", 15, 2, 12, 1),
    Sketcher.Constraint("Coincident", 16, 2, 17, 1),
    Sketcher.Constraint("Coincident", 17, 2, 18, 1),
    Sketcher.Constraint("Coincident", 18, 2, 19, 1),
    Sketcher.Constraint("Coincident", 19, 2, 16, 1),
    Sketcher.Constraint("Vertical", 4),
    Sketcher.Constraint("Horizontal", 5),
    Sketcher.Constraint("Vertical", 6),
    Sketcher.Constraint("Horizontal", 7),
    Sketcher.Constraint("Horizontal", 8),
    Sketcher.Constraint("Vertical", 9),
    Sketcher.Constraint("Horizontal", 10),
    Sketcher.Constraint("Vertical", 11),
    Sketcher.Constraint("Vertical", 12),
    Sketcher.Constraint("Horizontal", 13),
    Sketcher.Constraint("Vertical", 14),
    Sketcher.Constraint("Horizontal", 15),
    Sketcher.Constraint("Horizontal", 16),
    Sketcher.Constraint("Vertical", 17),
    Sketcher.Constraint("Horizontal", 18),
    Sketcher.Constraint("Vertical", 19),
    Sketcher.Constraint("Coincident", 1, 3, 0, 3),
    Sketcher.Constraint("Coincident", 3, 3, 2, 3),
    Sketcher.Constraint("Vertical", 1, 3, 2, 3),
    Sketcher.Constraint("Vertical", 9, 2, 16, 2),
    Sketcher.Constraint("Vertical", 11, 2, 18, 2),
    Sketcher.Constraint("Equal", 7, 13),
    Sketcher.Constraint("Equal", 6, 12),
    Sketcher.Constraint("Equal", 11, 17),
    Sketcher.Constraint("Diameter", 0, 4.0),
    Sketcher.Constraint("Diameter", 3, 2.2),
    Sketcher.Constraint("DistanceX", 5, 2, 5, 1, 7.2),
    Sketcher.Constraint("DistanceY", 4, 2, 4, 1, 4.2),
    Sketcher.Constraint("DistanceY", 9, 1, 9, 2, 2.2),
    Sketcher.Constraint("DistanceY", 4, 2, 8, 2, 1.0),
    Sketcher.Constraint("Diameter", 2, 4.003299),
    Sketcher.Constraint("DistanceY", 2, 3, 0, 3, 21.2),
    Sketcher.Constraint("DistanceY", 4, 2, 0, 3, 2.1),
    Sketcher.Constraint("DistanceX", 0, 3, 8, 2, 13.6),
    Sketcher.Constraint("DistanceY", 16, 2, 2, 3, 1.1),
    Sketcher.Constraint("Diameter", 1, 2.170418),
    Sketcher.Constraint("DistanceX", 8, 1, 8, 2, 5.025),
    Sketcher.Constraint("DistanceY", 12, 2, 2, 3, 2.0528),
    Sketcher.Constraint("DistanceX", 0, 3, 4, 2, 14.573619),
    Sketcher.Constraint("DistanceX", 2, 3, 12, 2, 14.643369),
    Sketcher.Constraint("DistanceX", 0, 3, -1, 1, 481.368796),
    Sketcher.Constraint("DistanceY", -1, 1, 0, 3, 317.386738),
])
pad8 = body.newObject("PartDesign::Pad", "Pad007")
pad8.Profile = sketch14
pad8.Length = 2

doc.recompute()
